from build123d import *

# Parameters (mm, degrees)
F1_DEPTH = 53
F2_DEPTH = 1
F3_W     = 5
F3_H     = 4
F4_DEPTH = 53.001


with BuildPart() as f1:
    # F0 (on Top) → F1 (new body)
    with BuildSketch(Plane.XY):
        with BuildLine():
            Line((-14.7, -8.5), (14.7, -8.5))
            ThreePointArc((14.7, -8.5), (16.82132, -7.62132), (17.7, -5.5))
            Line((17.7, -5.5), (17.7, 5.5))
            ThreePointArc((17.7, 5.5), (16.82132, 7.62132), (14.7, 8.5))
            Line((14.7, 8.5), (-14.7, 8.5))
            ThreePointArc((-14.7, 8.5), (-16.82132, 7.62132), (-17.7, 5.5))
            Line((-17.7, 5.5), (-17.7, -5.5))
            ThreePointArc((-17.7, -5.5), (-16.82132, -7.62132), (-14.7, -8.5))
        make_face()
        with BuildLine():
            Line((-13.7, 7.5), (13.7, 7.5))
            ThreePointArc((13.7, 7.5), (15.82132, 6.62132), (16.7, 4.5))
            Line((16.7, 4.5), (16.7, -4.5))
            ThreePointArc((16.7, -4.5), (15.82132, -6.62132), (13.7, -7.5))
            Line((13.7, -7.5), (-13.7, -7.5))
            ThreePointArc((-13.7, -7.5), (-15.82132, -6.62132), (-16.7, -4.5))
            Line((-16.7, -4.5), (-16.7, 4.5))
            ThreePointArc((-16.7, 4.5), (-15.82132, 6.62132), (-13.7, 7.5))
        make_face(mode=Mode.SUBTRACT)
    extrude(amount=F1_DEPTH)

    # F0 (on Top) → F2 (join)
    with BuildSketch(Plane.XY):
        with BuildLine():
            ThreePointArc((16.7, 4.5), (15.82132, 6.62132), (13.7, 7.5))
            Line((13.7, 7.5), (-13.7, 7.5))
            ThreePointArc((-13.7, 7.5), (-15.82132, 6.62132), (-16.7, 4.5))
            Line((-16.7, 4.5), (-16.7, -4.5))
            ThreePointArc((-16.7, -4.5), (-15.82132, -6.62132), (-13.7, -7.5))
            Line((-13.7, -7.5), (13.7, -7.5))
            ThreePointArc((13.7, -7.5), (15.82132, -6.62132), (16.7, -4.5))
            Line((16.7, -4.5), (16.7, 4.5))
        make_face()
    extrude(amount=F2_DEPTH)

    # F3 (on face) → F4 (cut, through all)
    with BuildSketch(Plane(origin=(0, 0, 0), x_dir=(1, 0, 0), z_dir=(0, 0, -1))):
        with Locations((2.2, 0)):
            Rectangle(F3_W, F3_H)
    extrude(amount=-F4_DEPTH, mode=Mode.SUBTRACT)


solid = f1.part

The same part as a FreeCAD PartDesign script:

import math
import FreeCAD as App
import Part
import Sketcher

V = App.Vector


def add_polygon(sketch, points):
    """Adds a closed chain of lines whose ends are joined by coincident constraints."""
    first, n = sketch.GeometryCount, len(points)
    for a, b in zip(points, points[1:] + points[:1]):
        sketch.addGeometry(Part.LineSegment(App.Vector(*a, 0), App.Vector(*b, 0)), False)
    for i in range(n):
        sketch.addConstraint(Sketcher.Constraint("Coincident", first + i, 2, first + (i + 1) % n, 1))

doc = App.newDocument("Part")
body = doc.addObject("PartDesign::Body", "Body")

sketch1 = body.newObject("Sketcher::SketchObject", "Sketch")
sketch1.AttachmentSupport = (doc.getObject("XY_Plane"), [""])
sketch1.MapMode = "FlatFace"
sketch1.addGeometry([
    Part.LineSegment(V(-14.7, -8.5, 0), V(14.7, -8.5, 0)),
    Part.ArcOfCircle(Part.Circle(V(14.7, -5.5, 0), V(0, 0, 1), 3), math.radians(-90), math.radians(0)),
    Part.LineSegment(V(17.7, -5.5, 0), V(17.7, 5.5, 0)),
    Part.ArcOfCircle(Part.Circle(V(14.7, 5.5, 0), V(0, 0, 1), 3), math.radians(0), math.radians(90)),
    Part.LineSegment(V(14.7, 8.5, 0), V(-14.7, 8.5, 0)),
    Part.ArcOfCircle(Part.Circle(V(-14.7, 5.5, 0), V(0, 0, 1), 3), math.radians(90), math.radians(180)),
    Part.LineSegment(V(-17.7, 5.5, 0), V(-17.7, -5.5, 0)),
    Part.ArcOfCircle(Part.Circle(V(-14.7, -5.5, 0), V(0, 0, 1), 3), math.radians(-180), math.radians(-90)),
    Part.ArcOfCircle(Part.Circle(V(-13.7, 4.5, 0), V(0, 0, 1), 3), math.radians(90), math.radians(180)),
    Part.LineSegment(V(-13.7, 7.5, 0), V(13.7, 7.5, 0)),
    Part.ArcOfCircle(Part.Circle(V(13.7, 4.5, 0), V(0, 0, 1), 3), math.radians(0), math.radians(90)),
    Part.LineSegment(V(16.7, 4.5, 0), V(16.7, -4.5, 0)),
    Part.ArcOfCircle(Part.Circle(V(13.7, -4.5, 0), V(0, 0, 1), 3), math.radians(-90), math.radians(0)),
    Part.LineSegment(V(13.7, -7.5, 0), V(-13.7, -7.5, 0)),
    Part.ArcOfCircle(Part.Circle(V(-13.7, -4.5, 0), V(0, 0, 1), 3), math.radians(-180), math.radians(-90)),
    Part.LineSegment(V(-16.7, -4.5, 0), V(-16.7, 4.5, 0)),
], False)
sketch1.addConstraint([
    Sketcher.Constraint("Tangent", 0, 2, 1, 1),
    Sketcher.Constraint("Tangent", 1, 2, 2, 1),
    Sketcher.Constraint("Tangent", 2, 2, 3, 1),
    Sketcher.Constraint("Tangent", 3, 2, 4, 1),
    Sketcher.Constraint("Tangent", 4, 2, 5, 1),
    Sketcher.Constraint("Tangent", 5, 2, 6, 1),
    Sketcher.Constraint("Tangent", 6, 2, 7, 1),
    Sketcher.Constraint("Tangent", 7, 2, 0, 1),
    Sketcher.Constraint("Tangent", 8, 1, 9, 1),
    Sketcher.Constraint("Tangent", 9, 2, 10, 2),
    Sketcher.Constraint("Tangent", 10, 1, 11, 1),
    Sketcher.Constraint("Tangent", 11, 2, 12, 2),
    Sketcher.Constraint("Tangent", 12, 1, 13, 1),
    Sketcher.Constraint("Tangent", 13, 2, 14, 2),
    Sketcher.Constraint("Tangent", 14, 1, 15, 1),
    Sketcher.Constraint("Tangent", 15, 2, 8, 2),
    Sketcher.Constraint("Horizontal", 0),
    Sketcher.Constraint("Vertical", 2),
    Sketcher.Constraint("Horizontal", 4),
    Sketcher.Constraint("Vertical", 6),
    Sketcher.Constraint("Horizontal", 9),
    Sketcher.Constraint("Vertical", 11),
    Sketcher.Constraint("Horizontal", 13),
    Sketcher.Constraint("Vertical", 15),
    Sketcher.Constraint("Equal", 1, 3),
    Sketcher.Constraint("Equal", 3, 5),
    Sketcher.Constraint("Equal", 5, 7),
    Sketcher.Constraint("Equal", 7, 8),
    Sketcher.Constraint("Equal", 8, 10),
    Sketcher.Constraint("Equal", 10, 12),
    Sketcher.Constraint("Equal", 12, 14),
    Sketcher.Constraint("Symmetric", 1, 3, 5, 3, -1, 1),
    Sketcher.Constraint("Symmetric", 8, 3, 12, 3, -1, 1),
    Sketcher.Constraint("Radius", 1, 3.000001),
    Sketcher.Constraint("DistanceY", 2, 1, 2, 2, 11.0),
    Sketcher.Constraint("DistanceY", 11, 2, 11, 1, 9.0),
    Sketcher.Constraint("DistanceX", 0, 1, 0, 2, 29.4),
    Sketcher.Constraint("DistanceX", 9, 1, 9, 2, 27.4),
])
pad1 = body.newObject("PartDesign::Pad", "Pad")
pad1.Profile = sketch1
pad1.Length = 53

sketch2 = body.newObject("Sketcher::SketchObject", "Sketch001")
sketch2.AttachmentSupport = (doc.getObject("XY_Plane"), [""])
sketch2.MapMode = "FlatFace"
sketch2.addGeometry([
    Part.ArcOfCircle(Part.Circle(V(13.7, 4.5, 0), V(0, 0, 1), 3), math.radians(0), math.radians(90)),
    Part.LineSegment(V(13.7, 7.5, 0), V(-13.7, 7.5, 0)),
    Part.ArcOfCircle(Part.Circle(V(-13.7, 4.5, 0), V(0, 0, 1), 3), math.radians(90), math.radians(180)),
    Part.LineSegment(V(-16.7, 4.5, 0), V(-16.7, -4.5, 0)),
    Part.ArcOfCircle(Part.Circle(V(-13.7, -4.5, 0), V(0, 0, 1), 3), math.radians(-180), math.radians(-90)),
    Part.LineSegment(V(-13.7, -7.5, 0), V(13.7, -7.5, 0)),
    Part.ArcOfCircle(Part.Circle(V(13.7, -4.5, 0), V(0, 0, 1), 3), math.radians(-90), math.radians(0)),
    Part.LineSegment(V(16.7, -4.5, 0), V(16.7, 4.5, 0)),
], False)
sketch2.addConstraint([
    Sketcher.Constraint("Tangent", 0, 2, 1, 1),
    Sketcher.Constraint("Tangent", 1, 2, 2, 1),
    Sketcher.Constraint("Tangent", 2, 2, 3, 1),
    Sketcher.Constraint("Tangent", 3, 2, 4, 1),
    Sketcher.Constraint("Tangent", 4, 2, 5, 1),
    Sketcher.Constraint("Tangent", 5, 2, 6, 1),
    Sketcher.Constraint("Tangent", 6, 2, 7, 1),
    Sketcher.Constraint("Tangent", 7, 2, 0, 1),
    Sketcher.Constraint("Horizontal", 1),
    Sketcher.Constraint("Vertical", 3),
    Sketcher.Constraint("Horizontal", 5),
    Sketcher.Constraint("Vertical", 7),
    Sketcher.Constraint("Equal", 0, 2),
    Sketcher.Constraint("Equal", 2, 4),
    Sketcher.Constraint("Equal", 4, 6),
    Sketcher.Constraint("Symmetric", 0, 3, 4, 3, -1, 1),
    Sketcher.Constraint("Radius", 0, 3.000001),
    Sketcher.Constraint("DistanceY", 3, 2, 3, 1, 9.0),
    Sketcher.Constraint("DistanceX", 1, 2, 1, 1, 27.4),
])
pad2 = body.newObject("PartDesign::Pad", "Pad001")
pad2.Profile = sketch2
pad2.Length = 1

sketch3 = body.newObject("Sketcher::SketchObject", "Sketch002")
sketch3.AttachmentSupport = (doc.getObject("XY_Plane"), [""])
sketch3.MapMode = "FlatFace"
add_polygon(sketch3, [(-0.3, -2), (-0.3, 2), (4.7, 2), (4.7, -2)])
sketch3.addConstraint([
    Sketcher.Constraint("Vertical", 0),
    Sketcher.Constraint("Horizontal", 1),
    Sketcher.Constraint("Vertical", 2),
    Sketcher.Constraint("Horizontal", 3),
    Sketcher.Constraint("DistanceX", 1, 1, 1, 2, 5.0),
    Sketcher.Constraint("DistanceY", 0, 1, 0, 2, 4.0),
    Sketcher.Constraint("DistanceY", -1, 1, 0, 2, 2.0),
    Sketcher.Constraint("DistanceX", 0, 2, -1, 1, 0.3),
])
pocket1 = body.newObject("PartDesign::Pocket", "Pocket")
pocket1.Profile = sketch3
pocket1.Type = "ThroughAll"
pocket1.Reversed = True

doc.recompute()
